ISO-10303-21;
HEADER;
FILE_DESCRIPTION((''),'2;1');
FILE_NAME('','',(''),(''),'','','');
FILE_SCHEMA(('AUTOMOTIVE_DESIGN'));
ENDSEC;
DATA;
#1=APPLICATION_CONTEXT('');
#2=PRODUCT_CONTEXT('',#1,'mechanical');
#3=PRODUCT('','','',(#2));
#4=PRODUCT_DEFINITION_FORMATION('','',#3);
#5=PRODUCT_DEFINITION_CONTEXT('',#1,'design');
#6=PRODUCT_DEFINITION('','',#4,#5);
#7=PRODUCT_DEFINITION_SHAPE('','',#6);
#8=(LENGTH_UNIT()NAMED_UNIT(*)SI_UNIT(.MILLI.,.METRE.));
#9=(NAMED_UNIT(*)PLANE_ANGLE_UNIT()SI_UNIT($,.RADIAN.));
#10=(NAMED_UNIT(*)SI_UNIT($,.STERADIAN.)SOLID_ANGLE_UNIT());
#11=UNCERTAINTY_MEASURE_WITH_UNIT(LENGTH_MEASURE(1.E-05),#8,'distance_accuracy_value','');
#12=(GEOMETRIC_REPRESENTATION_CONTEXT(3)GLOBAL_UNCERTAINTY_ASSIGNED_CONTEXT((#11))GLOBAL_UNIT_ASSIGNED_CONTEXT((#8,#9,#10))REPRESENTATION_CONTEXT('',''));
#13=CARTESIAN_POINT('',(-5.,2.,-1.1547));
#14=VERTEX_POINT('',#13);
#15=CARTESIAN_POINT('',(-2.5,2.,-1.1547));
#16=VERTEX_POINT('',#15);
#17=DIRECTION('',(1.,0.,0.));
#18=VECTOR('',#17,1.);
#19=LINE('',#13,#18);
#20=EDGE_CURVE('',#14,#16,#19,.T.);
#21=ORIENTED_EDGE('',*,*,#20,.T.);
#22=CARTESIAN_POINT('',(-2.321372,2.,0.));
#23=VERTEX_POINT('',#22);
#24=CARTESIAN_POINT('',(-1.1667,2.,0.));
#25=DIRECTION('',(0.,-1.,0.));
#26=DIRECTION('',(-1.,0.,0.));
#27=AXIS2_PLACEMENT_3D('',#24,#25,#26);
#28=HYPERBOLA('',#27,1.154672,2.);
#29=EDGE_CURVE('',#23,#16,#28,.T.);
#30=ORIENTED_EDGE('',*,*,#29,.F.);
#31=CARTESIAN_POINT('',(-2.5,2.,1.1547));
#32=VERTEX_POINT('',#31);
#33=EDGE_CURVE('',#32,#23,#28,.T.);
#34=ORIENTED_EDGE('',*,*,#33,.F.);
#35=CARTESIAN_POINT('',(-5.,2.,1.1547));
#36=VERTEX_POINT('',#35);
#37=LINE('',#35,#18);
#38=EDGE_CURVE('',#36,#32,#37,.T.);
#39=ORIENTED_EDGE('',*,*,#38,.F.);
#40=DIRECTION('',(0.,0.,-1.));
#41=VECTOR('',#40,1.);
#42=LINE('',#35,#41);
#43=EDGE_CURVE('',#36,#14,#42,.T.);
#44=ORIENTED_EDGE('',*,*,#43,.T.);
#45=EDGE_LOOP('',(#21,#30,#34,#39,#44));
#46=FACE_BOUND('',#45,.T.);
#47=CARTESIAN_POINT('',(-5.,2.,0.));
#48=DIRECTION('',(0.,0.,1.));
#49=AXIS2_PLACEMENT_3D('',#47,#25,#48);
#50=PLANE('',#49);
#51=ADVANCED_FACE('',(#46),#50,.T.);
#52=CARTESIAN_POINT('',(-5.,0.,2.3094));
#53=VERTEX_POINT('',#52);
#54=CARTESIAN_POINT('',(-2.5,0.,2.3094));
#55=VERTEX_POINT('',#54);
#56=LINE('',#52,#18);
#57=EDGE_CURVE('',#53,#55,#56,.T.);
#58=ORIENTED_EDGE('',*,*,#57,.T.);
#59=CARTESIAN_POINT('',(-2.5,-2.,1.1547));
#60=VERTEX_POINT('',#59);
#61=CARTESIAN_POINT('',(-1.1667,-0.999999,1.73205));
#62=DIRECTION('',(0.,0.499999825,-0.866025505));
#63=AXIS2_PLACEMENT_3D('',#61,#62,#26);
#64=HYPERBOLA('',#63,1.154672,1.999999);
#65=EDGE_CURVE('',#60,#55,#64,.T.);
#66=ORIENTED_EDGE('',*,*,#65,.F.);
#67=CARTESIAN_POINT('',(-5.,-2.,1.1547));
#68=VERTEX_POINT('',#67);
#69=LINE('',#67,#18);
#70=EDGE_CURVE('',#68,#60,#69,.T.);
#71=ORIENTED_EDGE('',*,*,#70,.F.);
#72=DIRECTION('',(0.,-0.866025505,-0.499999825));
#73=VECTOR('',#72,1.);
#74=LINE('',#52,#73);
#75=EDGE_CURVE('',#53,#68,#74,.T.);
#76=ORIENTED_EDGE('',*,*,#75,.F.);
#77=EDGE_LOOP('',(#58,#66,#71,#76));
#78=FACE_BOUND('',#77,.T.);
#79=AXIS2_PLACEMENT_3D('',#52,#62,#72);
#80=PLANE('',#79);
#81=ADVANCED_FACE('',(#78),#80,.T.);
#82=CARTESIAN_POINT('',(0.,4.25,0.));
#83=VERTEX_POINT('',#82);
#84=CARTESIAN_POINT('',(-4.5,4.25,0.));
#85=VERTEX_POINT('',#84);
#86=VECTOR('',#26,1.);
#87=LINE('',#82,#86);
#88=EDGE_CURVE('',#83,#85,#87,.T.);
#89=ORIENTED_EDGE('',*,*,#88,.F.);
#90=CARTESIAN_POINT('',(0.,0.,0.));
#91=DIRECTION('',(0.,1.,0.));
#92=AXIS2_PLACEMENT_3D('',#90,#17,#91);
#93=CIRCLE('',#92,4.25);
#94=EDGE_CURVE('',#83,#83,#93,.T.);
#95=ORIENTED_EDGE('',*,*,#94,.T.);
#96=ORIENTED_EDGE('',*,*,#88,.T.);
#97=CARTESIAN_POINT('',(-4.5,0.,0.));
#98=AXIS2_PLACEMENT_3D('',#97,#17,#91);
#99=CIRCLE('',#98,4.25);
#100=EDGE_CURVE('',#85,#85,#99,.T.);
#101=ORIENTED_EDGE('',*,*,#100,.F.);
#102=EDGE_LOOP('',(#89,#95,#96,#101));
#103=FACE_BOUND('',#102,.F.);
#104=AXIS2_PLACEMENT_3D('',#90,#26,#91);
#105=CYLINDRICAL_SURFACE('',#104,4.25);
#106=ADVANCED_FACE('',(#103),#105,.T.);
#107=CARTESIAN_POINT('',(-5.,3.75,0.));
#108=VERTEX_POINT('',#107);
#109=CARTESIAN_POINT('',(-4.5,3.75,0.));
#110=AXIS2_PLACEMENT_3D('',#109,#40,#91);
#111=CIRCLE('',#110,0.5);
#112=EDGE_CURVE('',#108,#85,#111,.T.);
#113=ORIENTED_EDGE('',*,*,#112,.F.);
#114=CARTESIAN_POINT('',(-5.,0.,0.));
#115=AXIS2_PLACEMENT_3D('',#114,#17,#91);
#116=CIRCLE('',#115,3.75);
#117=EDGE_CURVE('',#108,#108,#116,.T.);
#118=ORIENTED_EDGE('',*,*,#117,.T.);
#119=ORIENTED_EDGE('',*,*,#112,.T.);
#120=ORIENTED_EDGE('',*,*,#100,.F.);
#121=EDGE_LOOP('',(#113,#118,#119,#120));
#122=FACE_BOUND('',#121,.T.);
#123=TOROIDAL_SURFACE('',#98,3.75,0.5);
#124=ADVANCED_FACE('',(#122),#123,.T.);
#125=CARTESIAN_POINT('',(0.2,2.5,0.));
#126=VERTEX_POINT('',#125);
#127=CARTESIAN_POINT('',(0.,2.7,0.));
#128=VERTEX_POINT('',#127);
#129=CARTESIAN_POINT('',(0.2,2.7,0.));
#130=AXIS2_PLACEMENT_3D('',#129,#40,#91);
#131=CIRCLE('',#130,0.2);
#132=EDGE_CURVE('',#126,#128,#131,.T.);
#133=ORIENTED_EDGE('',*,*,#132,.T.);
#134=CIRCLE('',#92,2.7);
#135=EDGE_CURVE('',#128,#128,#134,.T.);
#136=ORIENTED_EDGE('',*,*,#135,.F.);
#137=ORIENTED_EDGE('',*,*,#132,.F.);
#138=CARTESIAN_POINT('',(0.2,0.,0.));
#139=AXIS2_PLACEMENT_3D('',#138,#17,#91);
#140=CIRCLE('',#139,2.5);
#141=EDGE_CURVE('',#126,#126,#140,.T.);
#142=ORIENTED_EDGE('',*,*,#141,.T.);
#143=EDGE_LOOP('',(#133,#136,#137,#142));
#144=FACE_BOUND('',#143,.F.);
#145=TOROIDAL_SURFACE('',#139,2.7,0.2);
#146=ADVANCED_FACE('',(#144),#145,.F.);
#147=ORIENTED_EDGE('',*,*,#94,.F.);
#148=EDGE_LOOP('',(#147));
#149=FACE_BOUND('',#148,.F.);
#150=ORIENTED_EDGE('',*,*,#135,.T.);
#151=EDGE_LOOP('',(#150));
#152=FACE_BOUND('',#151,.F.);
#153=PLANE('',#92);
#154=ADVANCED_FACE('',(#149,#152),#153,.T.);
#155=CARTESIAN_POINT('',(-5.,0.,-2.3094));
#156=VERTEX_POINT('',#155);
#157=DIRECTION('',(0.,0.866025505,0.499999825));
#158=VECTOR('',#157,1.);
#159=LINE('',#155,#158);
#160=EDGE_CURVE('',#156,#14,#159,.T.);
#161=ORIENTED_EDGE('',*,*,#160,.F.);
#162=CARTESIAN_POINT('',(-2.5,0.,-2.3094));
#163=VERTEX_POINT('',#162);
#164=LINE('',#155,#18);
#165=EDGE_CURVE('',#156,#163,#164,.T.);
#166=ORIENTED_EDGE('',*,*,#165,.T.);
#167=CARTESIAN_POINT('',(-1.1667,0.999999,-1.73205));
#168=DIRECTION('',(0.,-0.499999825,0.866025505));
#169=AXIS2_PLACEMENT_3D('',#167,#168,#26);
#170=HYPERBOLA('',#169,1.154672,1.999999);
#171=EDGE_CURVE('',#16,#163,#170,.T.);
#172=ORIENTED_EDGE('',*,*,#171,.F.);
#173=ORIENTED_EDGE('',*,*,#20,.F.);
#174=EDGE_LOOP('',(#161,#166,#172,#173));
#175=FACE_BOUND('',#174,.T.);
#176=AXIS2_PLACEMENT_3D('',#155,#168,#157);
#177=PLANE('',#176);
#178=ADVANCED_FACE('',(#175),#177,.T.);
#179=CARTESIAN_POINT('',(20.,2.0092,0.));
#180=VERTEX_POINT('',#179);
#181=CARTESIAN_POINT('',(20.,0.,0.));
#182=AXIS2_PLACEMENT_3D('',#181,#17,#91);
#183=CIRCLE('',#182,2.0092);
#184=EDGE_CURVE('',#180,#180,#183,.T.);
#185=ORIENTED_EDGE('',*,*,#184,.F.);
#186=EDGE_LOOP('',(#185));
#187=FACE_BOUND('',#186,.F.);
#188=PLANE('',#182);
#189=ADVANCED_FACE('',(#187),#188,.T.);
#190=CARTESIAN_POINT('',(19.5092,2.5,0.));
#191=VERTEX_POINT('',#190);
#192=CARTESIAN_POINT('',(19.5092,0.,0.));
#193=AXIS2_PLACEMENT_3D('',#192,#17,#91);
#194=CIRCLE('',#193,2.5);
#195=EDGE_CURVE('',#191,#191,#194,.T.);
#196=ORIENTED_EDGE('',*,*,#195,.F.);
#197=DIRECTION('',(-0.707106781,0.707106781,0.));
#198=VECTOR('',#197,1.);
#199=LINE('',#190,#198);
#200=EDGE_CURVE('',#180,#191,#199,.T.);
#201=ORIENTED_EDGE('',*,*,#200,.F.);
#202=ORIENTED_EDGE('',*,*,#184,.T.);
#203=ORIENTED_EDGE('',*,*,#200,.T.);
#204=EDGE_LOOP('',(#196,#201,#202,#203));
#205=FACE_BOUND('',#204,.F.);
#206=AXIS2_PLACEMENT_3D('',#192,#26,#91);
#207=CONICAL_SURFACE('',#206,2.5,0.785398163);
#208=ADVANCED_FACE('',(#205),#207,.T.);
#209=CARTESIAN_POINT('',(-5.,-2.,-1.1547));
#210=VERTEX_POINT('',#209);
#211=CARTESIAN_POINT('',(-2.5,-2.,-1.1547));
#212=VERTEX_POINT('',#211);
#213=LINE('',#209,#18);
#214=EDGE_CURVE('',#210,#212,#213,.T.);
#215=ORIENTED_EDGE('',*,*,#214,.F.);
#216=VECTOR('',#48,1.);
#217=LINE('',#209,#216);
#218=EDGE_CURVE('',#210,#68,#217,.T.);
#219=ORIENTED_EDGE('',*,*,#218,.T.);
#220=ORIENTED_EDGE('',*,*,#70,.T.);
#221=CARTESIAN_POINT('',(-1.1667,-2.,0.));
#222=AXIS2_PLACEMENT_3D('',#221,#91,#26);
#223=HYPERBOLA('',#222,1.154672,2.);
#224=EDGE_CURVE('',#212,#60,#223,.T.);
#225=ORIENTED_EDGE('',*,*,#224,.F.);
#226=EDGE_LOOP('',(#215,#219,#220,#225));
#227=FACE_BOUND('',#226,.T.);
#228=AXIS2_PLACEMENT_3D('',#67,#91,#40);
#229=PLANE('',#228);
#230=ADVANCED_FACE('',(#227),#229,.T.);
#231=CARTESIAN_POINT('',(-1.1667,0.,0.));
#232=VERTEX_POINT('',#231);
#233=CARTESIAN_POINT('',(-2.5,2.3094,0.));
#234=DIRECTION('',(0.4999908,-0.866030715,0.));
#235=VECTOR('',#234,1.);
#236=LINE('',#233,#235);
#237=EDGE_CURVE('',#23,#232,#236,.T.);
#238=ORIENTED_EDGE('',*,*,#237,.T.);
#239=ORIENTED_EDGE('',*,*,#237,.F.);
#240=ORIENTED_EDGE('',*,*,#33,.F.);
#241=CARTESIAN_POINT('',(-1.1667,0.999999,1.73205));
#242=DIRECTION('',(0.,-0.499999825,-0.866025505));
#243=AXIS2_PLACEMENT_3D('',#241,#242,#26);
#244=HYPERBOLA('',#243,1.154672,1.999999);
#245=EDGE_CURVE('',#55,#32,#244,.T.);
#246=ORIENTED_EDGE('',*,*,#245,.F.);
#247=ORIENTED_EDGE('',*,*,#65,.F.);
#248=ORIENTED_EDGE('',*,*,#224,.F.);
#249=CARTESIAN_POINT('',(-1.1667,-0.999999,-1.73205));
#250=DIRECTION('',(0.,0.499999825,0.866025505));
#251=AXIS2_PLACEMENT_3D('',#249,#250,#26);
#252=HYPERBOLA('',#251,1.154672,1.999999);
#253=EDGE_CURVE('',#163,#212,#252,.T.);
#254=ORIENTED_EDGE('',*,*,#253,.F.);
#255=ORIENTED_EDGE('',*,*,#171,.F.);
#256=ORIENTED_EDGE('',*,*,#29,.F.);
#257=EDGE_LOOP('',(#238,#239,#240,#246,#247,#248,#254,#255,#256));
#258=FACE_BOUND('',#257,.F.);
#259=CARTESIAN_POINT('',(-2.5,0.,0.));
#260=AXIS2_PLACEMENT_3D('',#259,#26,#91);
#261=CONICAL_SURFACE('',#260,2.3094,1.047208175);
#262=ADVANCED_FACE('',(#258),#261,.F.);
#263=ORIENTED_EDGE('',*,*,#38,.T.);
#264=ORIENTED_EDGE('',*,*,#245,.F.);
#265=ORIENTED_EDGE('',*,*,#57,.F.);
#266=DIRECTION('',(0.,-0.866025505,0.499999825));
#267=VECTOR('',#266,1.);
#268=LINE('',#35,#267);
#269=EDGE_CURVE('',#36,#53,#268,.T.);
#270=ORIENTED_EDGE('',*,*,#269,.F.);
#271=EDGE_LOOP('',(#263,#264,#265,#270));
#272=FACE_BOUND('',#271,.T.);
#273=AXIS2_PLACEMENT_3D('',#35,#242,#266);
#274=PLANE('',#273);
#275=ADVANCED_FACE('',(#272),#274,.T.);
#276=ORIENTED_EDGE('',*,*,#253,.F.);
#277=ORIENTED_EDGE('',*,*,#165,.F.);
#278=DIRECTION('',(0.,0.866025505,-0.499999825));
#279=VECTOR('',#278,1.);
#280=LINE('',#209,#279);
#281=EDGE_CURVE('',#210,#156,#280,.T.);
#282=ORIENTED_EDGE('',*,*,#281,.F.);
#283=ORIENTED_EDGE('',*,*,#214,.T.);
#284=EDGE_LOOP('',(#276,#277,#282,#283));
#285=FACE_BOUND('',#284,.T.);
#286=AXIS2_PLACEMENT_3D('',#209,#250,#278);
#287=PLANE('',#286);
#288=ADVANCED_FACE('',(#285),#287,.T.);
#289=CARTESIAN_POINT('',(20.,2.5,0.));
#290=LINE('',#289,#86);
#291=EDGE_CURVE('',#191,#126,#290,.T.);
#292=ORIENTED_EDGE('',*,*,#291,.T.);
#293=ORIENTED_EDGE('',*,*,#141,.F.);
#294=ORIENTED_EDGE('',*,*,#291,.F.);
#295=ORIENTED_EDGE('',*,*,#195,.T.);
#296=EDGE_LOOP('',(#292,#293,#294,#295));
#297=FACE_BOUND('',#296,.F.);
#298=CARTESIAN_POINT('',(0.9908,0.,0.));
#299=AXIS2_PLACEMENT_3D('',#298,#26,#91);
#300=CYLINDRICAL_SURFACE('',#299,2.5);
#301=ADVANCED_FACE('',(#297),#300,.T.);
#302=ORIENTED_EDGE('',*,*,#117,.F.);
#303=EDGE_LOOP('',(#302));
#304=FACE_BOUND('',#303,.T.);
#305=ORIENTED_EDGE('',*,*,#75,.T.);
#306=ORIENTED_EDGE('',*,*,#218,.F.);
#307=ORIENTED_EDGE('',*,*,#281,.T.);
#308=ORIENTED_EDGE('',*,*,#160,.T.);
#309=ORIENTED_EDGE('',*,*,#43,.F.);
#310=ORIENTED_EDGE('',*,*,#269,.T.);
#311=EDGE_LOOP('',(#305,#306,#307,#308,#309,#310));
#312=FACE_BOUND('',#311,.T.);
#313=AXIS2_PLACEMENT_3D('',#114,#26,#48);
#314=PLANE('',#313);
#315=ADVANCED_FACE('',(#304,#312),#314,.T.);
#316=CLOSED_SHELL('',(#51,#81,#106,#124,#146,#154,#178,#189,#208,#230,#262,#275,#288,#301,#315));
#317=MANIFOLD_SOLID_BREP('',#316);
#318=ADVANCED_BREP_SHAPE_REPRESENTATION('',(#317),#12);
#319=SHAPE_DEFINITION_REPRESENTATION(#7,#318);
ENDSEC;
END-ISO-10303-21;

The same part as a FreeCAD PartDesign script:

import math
import FreeCAD as App
import Part
import Sketcher

V = App.Vector
Q = App.Units.Quantity


def edges_at(feature, points):
    """Names of the edges that pass closest to the given points."""
    edges = feature.Shape.Edges
    near = lambda p: min(range(len(edges)), key=lambda i: edges[i].distToShape(Part.Vertex(*p))[0])
    return sorted({f"Edge{near(p) + 1}" for p in points})


def add_polygon(sketch, points):
    """Adds a closed chain of lines whose ends are joined by coincident constraints."""
    first, n = sketch.GeometryCount, len(points)
    for a, b in zip(points, points[1:] + points[:1]):
        sketch.addGeometry(Part.LineSegment(App.Vector(*a, 0), App.Vector(*b, 0)), False)
    for i in range(n):
        sketch.addConstraint(Sketcher.Constraint("Coincident", first + i, 2, first + (i + 1) % n, 1))

doc = App.newDocument("Part")
params = doc.addObject("Spreadsheet::Sheet", "Params")
for row, (alias, value) in enumerate([
    ("sketch1_width", "20 mm"),
    ("sketch1_width2", "5 mm"),
    ("sketch1_width3", "2.5 mm"),
    ("sketch1_height", "1.75 mm"),
    ("revolution_angle", "360 deg"),
    ("pad1_length", "2.6786 mm"),
    ("fillet_radius", "0.5 mm"),
    ("chamfer_size", "0.4908 mm"),
    ("chamfer_size2", "0.4908 mm"),
    ("fillet2_radius", "0.2 mm"),
], start=1):
    params.set(f"A{row}", alias)
    params.set(f"B{row}", "=" + value)
    params.setAlias(f"B{row}", alias)

body = doc.addObject("PartDesign::Body", "Body")

sketch1 = doc.addObject("Sketcher::SketchObject", "Sketch")
body.addObject(sketch1)
sketch1.AttachmentSupport = (doc.XY_Plane, [""])
sketch1.MapMode = "FlatFace"
add_polygon(sketch1, [(-2.5, 2.3), (-1.2, 0), (20, 0), (20, 2.5), (0, 2.5), (0, 4.2), (-5, 4.2), (-5, 2.3)])
sketch1.addConstraint([
    Sketcher.Constraint("Horizontal", 1),
    Sketcher.Constraint("Vertical", 2),
    Sketcher.Constraint("Horizontal", 3),
    Sketcher.Constraint("Vertical", 4),
    Sketcher.Constraint("Horizontal", 5),
    Sketcher.Constraint("Vertical", 6),
    Sketcher.Constraint("Horizontal", 7),
    Sketcher.Constraint("PointOnObject", 0, 2, -1),
    Sketcher.Constraint("PointOnObject", 3, 2, -2),
    Sketcher.Constraint("Equal", 7, 2),
    Sketcher.Constraint("DistanceX", 3, 2, 3, 1, Q("20 mm")),
    Sketcher.Constraint("DistanceX", 5, 2, 5, 1, Q("5 mm")),
    Sketcher.Constraint("DistanceX", 7, 1, 7, 2, Q("2.5 mm")),
    Sketcher.Constraint("Angle", 0, Q("-60.0006 deg")),
    Sketcher.Constraint("DistanceY", 4, 1, 4, 2, Q("1.75 mm")),
    Sketcher.Constraint("DistanceX", 1, 1, 1, 2, Q("21.1667 mm")),
])
sketch1.setExpression("Constraints[18]", "Params.sketch1_width")
sketch1.setExpression("Constraints[19]", "Params.sketch1_width2")
sketch1.setExpression("Constraints[20]", "Params.sketch1_width3")
sketch1.setExpression("Constraints[22]", "Params.sketch1_height")
revolution = doc.addObject("PartDesign::Revolution", "Revolution")
body.addObject(revolution)
revolution.Profile = sketch1
revolution.ReferenceAxis = (sketch1, ["H_Axis"])
revolution.setExpression("Angle", "Params.revolution_angle")

sketch2 = doc.addObject("Sketcher::SketchObject", "Sketch001")
body.addObject(sketch2)
sketch2.AttachmentSupport = (doc.YZ_Plane, [""])
sketch2.MapMode = "FlatFace"
sketch2.AttachmentOffset = App.Placement(V(0, 0, -5), App.Rotation())
sketch2.addGeometry([
    Part.LineSegment(V(2, 1.2, 0), V(0, 2.3, 0)),
    Part.ArcOfCircle(Part.Circle(V(0, 0, 0), V(0, 0, 1), 2.3), math.radians(30), math.radians(90)),
    Part.ArcOfCircle(Part.Circle(V(0, 0, 0), V(0, 0, 1), 2.3), math.radians(90), math.radians(150)),
    Part.LineSegment(V(0, 2.3, 0), V(-2, 1.2, 0)),
    Part.ArcOfCircle(Part.Circle(V(0, 0, 0), V(0, 0, 1), 2.3), math.radians(-30), math.radians(30)),
    Part.LineSegment(V(2, -1.2, 0), V(2, 1.2, 0)),
    Part.LineSegment(V(-2, 1.2, 0), V(-2, -1.2, 0)),
    Part.ArcOfCircle(Part.Circle(V(0, 0, 0), V(0, 0, 1), 2.3), math.radians(150), math.radians(210)),
    Part.LineSegment(V(-2, -1.2, 0), V(0, -2.3, 0)),
    Part.ArcOfCircle(Part.Circle(V(0, 0, 0), V(0, 0, 1), 2.3), math.radians(-150), math.radians(-90)),
    Part.ArcOfCircle(Part.Circle(V(0, 0, 0), V(0, 0, 1), 2.3), math.radians(-90), math.radians(-30)),
    Part.LineSegment(V(0, -2.3, 0), V(2, -1.2, 0)),
], False)
sketch2.addConstraint([
    Sketcher.Constraint("Coincident", 0, 1, 1, 1),
    Sketcher.Constraint("Coincident", 1, 2, 0, 2),
    Sketcher.Constraint("Coincident", 2, 1, 3, 1),
    Sketcher.Constraint("Coincident", 3, 2, 2, 2),
    Sketcher.Constraint("Coincident", 4, 1, 5, 1),
    Sketcher.Constraint("Coincident", 5, 2, 4, 2),
    Sketcher.Constraint("Coincident", 6, 1, 7, 1),
    Sketcher.Constraint("Coincident", 7, 2, 6, 2),
    Sketcher.Constraint("Coincident", 8, 1, 9, 1),
    Sketcher.Constraint("Coincident", 9, 2, 8, 2),
    Sketcher.Constraint("Coincident", 10, 1, 11, 1),
    Sketcher.Constraint("Coincident", 11, 2, 10, 2),
    Sketcher.Constraint("Vertical", 5),
    Sketcher.Constraint("Vertical", 6),
    Sketcher.Constraint("Coincident", 1, 3, -1, 1),
    Sketcher.Constraint("Coincident", 2, 3, -1, 1),
    Sketcher.Constraint("Coincident", 4, 3, -1, 1),
    Sketcher.Constraint("Coincident", 7, 3, -1, 1),
    Sketcher.Constraint("Coincident", 9, 3, -1, 1),
    Sketcher.Constraint("Coincident", 10, 3, -1, 1),
    Sketcher.Constraint("Coincident", 2, 1, 1, 2),
    Sketcher.Constraint("Coincident", 5, 2, 0, 1),
    Sketcher.Constraint("Coincident", 6, 1, 3, 2),
    Sketcher.Constraint("Coincident", 8, 1, 7, 2),
    Sketcher.Constraint("Coincident", 10, 1, 9, 2),
    Sketcher.Constraint("PointOnObject", 1, 2, -2),
    Sketcher.Constraint("PointOnObject", 9, 2, -2),
    Sketcher.Constraint("Parallel", 0, 8),
    Sketcher.Constraint("Parallel", 3, 11),
    Sketcher.Constraint("Angle", 0, Q("150 deg")),
    Sketcher.Constraint("DistanceX", -1, 1, 0, 1, Q("2 mm")),
])
pad1 = doc.addObject("PartDesign::Pad", "Pad")
body.addObject(pad1)
pad1.Profile = sketch2
pad1.setExpression("Length", "Params.pad1_length")
doc.recompute()

fillet = doc.addObject("PartDesign::Fillet", "Fillet")
body.addObject(fillet)
fillet.Base = (pad1, edges_at(pad1, [(-5, -4.25, 0)]))
fillet.setExpression("Radius", "Params.fillet_radius")
doc.recompute()

chamfer = doc.addObject("PartDesign::Chamfer", "Chamfer")
body.addObject(chamfer)
chamfer.Base = (fillet, edges_at(fillet, [(20, -2.5, 0)]))
chamfer.ChamferType = "Two distances"
chamfer.setExpression("Size", "Params.chamfer_size")
chamfer.setExpression("Size2", "Params.chamfer_size2")
doc.recompute()

fillet2 = doc.addObject("PartDesign::Fillet", "Fillet001")
body.addObject(fillet2)
fillet2.Base = (chamfer, edges_at(chamfer, [(0, -2.5, 0)]))
fillet2.setExpression("Radius", "Params.fillet2_radius")

doc.recompute()
